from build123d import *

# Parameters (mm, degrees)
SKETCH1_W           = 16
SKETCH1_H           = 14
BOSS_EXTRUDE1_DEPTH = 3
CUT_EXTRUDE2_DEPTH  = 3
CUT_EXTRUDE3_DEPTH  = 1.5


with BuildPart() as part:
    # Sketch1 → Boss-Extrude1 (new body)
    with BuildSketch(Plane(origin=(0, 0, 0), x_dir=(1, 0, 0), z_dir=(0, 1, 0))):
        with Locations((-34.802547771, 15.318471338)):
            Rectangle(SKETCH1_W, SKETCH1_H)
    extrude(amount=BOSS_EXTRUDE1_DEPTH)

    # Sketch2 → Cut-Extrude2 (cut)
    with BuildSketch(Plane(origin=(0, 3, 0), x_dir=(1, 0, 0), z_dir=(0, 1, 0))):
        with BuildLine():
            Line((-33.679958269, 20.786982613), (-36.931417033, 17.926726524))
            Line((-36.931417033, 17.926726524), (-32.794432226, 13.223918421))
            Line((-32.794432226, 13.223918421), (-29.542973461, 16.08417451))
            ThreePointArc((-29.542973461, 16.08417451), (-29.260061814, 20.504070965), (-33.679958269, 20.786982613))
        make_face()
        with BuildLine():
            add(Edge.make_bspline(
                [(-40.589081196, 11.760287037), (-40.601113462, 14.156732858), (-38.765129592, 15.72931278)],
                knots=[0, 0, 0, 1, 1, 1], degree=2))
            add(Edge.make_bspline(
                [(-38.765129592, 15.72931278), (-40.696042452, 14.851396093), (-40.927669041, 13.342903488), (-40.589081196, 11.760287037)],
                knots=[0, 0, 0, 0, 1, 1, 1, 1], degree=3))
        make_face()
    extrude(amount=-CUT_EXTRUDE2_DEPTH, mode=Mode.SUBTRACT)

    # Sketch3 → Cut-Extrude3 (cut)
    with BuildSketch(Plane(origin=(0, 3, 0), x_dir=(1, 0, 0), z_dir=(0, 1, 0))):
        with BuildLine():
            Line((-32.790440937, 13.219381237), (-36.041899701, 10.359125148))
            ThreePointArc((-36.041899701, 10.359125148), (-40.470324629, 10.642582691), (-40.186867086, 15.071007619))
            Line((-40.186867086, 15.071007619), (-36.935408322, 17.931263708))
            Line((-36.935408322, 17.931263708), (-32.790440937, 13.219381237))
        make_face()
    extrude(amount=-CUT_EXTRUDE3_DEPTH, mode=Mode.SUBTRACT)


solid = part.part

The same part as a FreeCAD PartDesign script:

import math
import FreeCAD as App
import Part
import Sketcher

doc = App.newDocument("Part")
body = doc.addObject("PartDesign::Body", "Body")

# Sketch on XZ plane
sketch1 = body.newObject("Sketcher::SketchObject", "Sketch")
sketch1.AttachmentSupport = (doc.getObject("XZ_Plane"), [""])
sketch1.MapMode = "FlatFace"
sketch1.addGeometry([
    Part.LineSegment(App.Vector(-42.802548, -22.318471, 0), App.Vector(-42.802548, -8.318471, 0)),
    Part.LineSegment(App.Vector(-42.802548, -8.318471, 0), App.Vector(-26.802548, -8.318471, 0)),
    Part.LineSegment(App.Vector(-26.802548, -8.318471, 0), App.Vector(-26.802548, -22.318471, 0)),
    Part.LineSegment(App.Vector(-26.802548, -22.318471, 0), App.Vector(-42.802548, -22.318471, 0)),
], False)
sketch1.addConstraint([
    Sketcher.Constraint("Coincident", 0, 2, 1, 1),
    Sketcher.Constraint("Coincident", 1, 2, 2, 1),
    Sketcher.Constraint("Coincident", 2, 2, 3, 1),
    Sketcher.Constraint("Coincident", 3, 2, 0, 1),
    Sketcher.Constraint("Vertical", 0),
    Sketcher.Constraint("Horizontal", 1),
    Sketcher.Constraint("Vertical", 2),
    Sketcher.Constraint("Horizontal", 3),
    Sketcher.Constraint("DistanceX", 1, 1, 1, 2, 16.0),
    Sketcher.Constraint("DistanceY", 0, 1, 0, 2, 14.0),
    Sketcher.Constraint("DistanceY", 0, 2, -1, 1, 8.318471),
    Sketcher.Constraint("DistanceX", 0, 2, -1, 1, 42.802548),
])
pad1 = body.newObject("PartDesign::Pad", "Pad")
pad1.Profile = sketch1
pad1.Length = 3
pad1.Reversed = True

# Sketch on XZ plane
sketch2 = body.newObject("Sketcher::SketchObject", "Sketch001")
sketch2.AttachmentSupport = (doc.getObject("XZ_Plane"), [""])
sketch2.MapMode = "FlatFace"
sketch2.AttachmentOffset = App.Placement(App.Vector(0, 0, -3), App.Rotation())
sketch2.addGeometry([
    Part.LineSegment(App.Vector(-33.679958, -20.786983, 0), App.Vector(-36.931417, -17.926727, 0)),  # 0
    Part.LineSegment(App.Vector(-36.931417, -17.926727, 0), App.Vector(-32.794432, -13.223918, 0)),  # 1
    Part.LineSegment(App.Vector(-32.794432, -13.223918, 0), App.Vector(-29.542973, -16.084175, 0)),  # 2
    Part.ArcOfCircle(Part.Circle(App.Vector(-31.611466, -18.435579, 0), App.Vector(0, 0, 1), 3.131735), math.radians(-131.33757), math.radians(48.66243)),  # 3
    Part.BSplineCurve([App.Vector(-40.589081, -11.760287, 0), App.Vector(-40.601113, -14.156733, 0), App.Vector(-38.76513, -15.729313, 0)], [3, 3], [0, 1], False, 2, [1, 1, 1], False),  # 4
    Part.BSplineCurve([App.Vector(-38.76513, -15.729313, 0), App.Vector(-40.696042, -14.851396, 0), App.Vector(-40.927669, -13.342903, 0), App.Vector(-40.589081, -11.760287, 0)], [4, 4], [0, 1], False, 3, [1, 1, 1, 1], False),  # 5
], False)
sketch2.addConstraint([
    Sketcher.Constraint("Block", 4),
    Sketcher.Constraint("Block", 5),
    Sketcher.Constraint("Coincident", 0, 2, 1, 1),
    Sketcher.Constraint("Coincident", 1, 2, 2, 1),
    Sketcher.Constraint("Tangent", 2, 2, 3, 2),
    Sketcher.Constraint("Tangent", 3, 1, 0, 1),
    Sketcher.Constraint("Perpendicular", 0, 1),
    Sketcher.Constraint("Perpendicular", 1, 2),
    Sketcher.Constraint("Radius", 3, 3.131735),
    Sketcher.Constraint("Distance", 0, 4.330479),
    Sketcher.Constraint("DistanceY", 3, 3, -1, 1, 18.435579),
    Sketcher.Constraint("DistanceY", 1, 2, -1, 1, 13.223918),
    Sketcher.Constraint("DistanceX", 3, 1, -1, 1, 33.679958),
])
pocket1 = body.newObject("PartDesign::Pocket", "Pocket")
pocket1.Profile = sketch2
pocket1.Length = 3
pocket1.Reversed = True

# Sketch on XZ plane
sketch3 = body.newObject("Sketcher::SketchObject", "Sketch002")
sketch3.AttachmentSupport = (doc.getObject("XZ_Plane"), [""])
sketch3.MapMode = "FlatFace"
sketch3.AttachmentOffset = App.Placement(App.Vector(0, 0, -3), App.Rotation())
sketch3.addGeometry([
    Part.LineSegment(App.Vector(-36.0419, -10.359125, 0), App.Vector(-32.790441, -13.219381, 0)),
    Part.LineSegment(App.Vector(-32.790441, -13.219381, 0), App.Vector(-36.935408, -17.931264, 0)),
    Part.LineSegment(App.Vector(-36.935408, -17.931264, 0), App.Vector(-40.186867, -15.071008, 0)),
    Part.ArcOfCircle(Part.Circle(App.Vector(-38.114383, -12.715066, 0), App.Vector(0, 0, 1), 3.137778), math.radians(48.66243), math.radians(228.66243)),
], False)
sketch3.addConstraint([
    Sketcher.Constraint("Coincident", 0, 2, 1, 1),
    Sketcher.Constraint("Coincident", 1, 2, 2, 1),
    Sketcher.Constraint("Tangent", 2, 2, 3, 2),
    Sketcher.Constraint("Tangent", 3, 1, 0, 1),
    Sketcher.Constraint("Perpendicular", 0, 1),
    Sketcher.Constraint("Perpendicular", 1, 2),
    Sketcher.Constraint("Radius", 3, 3.137778),
    Sketcher.Constraint("DistanceX", 3, 1, -1, 1, 36.0419),
    Sketcher.Constraint("Distance", 0, 4.330479),
    Sketcher.Constraint("DistanceX", 0, 2, -1, 1, 32.790441),
    Sketcher.Constraint("DistanceY", 0, 2, -1, 1, 13.219381),
])
pocket2 = body.newObject("PartDesign::Pocket", "Pocket001")
pocket2.Profile = sketch3
pocket2.Length = 1.5
pocket2.Reversed = True

doc.recompute()
